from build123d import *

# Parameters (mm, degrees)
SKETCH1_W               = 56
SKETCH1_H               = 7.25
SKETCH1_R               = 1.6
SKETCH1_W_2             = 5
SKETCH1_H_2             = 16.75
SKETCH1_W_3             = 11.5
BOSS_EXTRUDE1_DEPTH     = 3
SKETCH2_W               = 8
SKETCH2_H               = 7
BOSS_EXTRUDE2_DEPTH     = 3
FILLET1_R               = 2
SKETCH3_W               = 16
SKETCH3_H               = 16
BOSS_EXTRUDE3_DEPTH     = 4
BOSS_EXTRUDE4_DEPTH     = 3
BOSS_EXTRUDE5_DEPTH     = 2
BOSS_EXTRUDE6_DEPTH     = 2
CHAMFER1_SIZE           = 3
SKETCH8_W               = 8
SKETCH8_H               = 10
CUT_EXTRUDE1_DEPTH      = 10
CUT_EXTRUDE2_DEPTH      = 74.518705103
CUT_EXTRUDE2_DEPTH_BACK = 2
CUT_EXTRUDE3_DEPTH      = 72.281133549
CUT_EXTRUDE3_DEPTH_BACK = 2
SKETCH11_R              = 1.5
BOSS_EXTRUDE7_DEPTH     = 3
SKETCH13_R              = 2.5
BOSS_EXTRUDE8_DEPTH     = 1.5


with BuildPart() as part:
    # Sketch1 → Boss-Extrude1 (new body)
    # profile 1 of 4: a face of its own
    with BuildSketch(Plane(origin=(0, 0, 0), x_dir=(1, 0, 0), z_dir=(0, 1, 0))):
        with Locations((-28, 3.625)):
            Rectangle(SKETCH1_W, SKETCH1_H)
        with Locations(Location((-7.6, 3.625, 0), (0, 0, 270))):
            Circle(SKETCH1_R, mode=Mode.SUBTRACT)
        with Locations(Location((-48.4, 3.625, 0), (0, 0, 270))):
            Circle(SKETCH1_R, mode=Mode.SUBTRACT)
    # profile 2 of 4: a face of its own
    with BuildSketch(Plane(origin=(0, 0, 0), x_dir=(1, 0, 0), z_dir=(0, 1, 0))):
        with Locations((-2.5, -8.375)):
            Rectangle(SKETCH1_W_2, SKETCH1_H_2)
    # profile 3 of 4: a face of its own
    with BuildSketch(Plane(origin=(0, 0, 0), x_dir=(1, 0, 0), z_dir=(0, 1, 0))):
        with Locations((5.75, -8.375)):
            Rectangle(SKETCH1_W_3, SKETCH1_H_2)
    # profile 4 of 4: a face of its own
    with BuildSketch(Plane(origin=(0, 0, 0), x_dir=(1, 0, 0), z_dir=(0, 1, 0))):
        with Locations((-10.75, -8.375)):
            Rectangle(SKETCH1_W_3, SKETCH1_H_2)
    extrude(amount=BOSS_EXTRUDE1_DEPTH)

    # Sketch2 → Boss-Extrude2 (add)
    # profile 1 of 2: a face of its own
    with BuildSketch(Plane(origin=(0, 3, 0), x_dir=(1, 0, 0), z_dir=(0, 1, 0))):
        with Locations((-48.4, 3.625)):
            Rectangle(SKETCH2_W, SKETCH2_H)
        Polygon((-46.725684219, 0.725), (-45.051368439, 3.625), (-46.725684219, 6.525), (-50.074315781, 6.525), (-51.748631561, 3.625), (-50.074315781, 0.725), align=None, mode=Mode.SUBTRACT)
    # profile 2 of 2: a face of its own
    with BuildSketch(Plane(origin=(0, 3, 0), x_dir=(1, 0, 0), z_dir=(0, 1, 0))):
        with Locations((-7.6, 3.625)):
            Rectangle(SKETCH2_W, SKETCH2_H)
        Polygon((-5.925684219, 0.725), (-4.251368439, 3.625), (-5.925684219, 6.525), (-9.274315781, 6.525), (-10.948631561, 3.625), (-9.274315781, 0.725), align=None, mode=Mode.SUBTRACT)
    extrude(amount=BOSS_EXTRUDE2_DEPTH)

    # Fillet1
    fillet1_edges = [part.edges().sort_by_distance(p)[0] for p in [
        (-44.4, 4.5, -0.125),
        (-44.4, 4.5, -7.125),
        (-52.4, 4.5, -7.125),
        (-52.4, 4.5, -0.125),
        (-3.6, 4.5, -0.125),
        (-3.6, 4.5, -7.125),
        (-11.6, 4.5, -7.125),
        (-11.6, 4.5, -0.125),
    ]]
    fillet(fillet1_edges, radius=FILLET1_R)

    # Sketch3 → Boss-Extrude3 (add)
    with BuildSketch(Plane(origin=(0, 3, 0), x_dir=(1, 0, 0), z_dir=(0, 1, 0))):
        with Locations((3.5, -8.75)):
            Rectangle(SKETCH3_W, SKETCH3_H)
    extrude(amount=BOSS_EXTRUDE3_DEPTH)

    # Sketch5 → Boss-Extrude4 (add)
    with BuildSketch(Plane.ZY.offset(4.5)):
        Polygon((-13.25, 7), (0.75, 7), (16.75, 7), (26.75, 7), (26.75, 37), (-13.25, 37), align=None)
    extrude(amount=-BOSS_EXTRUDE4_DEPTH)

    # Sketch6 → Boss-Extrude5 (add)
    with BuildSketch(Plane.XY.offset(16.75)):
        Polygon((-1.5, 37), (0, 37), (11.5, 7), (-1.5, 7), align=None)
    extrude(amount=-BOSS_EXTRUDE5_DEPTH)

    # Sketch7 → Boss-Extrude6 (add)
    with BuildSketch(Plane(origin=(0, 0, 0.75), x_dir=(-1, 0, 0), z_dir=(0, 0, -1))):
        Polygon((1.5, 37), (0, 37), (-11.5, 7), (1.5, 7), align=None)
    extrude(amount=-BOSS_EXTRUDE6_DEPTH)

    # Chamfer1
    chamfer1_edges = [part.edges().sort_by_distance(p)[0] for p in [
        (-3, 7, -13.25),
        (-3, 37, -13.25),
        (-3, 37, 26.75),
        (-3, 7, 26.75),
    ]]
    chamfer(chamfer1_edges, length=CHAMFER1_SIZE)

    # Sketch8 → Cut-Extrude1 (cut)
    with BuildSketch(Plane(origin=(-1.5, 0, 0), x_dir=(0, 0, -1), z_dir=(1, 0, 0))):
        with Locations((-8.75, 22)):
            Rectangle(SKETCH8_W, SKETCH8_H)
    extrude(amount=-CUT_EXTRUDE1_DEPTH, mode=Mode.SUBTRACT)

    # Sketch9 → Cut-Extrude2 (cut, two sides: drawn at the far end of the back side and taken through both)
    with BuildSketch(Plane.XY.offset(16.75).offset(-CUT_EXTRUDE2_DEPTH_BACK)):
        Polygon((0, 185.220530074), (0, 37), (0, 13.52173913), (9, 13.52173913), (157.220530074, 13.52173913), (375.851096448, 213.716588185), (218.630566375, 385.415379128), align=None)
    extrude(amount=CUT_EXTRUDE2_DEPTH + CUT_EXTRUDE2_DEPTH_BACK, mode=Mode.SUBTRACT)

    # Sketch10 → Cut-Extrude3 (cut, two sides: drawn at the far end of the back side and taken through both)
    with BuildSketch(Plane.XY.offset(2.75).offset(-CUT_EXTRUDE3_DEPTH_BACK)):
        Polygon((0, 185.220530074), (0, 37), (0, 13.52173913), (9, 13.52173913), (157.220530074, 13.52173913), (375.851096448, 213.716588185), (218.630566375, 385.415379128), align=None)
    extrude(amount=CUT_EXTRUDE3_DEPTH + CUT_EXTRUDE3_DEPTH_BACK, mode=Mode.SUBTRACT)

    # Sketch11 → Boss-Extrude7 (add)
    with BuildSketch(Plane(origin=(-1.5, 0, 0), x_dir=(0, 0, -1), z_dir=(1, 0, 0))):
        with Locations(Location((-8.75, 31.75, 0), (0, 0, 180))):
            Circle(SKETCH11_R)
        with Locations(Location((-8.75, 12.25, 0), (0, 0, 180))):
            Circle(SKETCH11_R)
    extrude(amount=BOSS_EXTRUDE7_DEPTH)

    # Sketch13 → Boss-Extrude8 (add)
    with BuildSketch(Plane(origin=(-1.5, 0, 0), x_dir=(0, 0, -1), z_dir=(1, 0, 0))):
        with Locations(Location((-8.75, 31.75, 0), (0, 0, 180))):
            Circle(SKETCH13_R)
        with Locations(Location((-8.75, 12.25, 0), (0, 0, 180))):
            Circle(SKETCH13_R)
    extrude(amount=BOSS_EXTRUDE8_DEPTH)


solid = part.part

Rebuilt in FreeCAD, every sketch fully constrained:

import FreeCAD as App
import Part
import Sketcher

V = App.Vector
Q = App.Units.Quantity


def edges_at(feature, points):
    """Names of the edges that pass closest to the given points."""
    edges = feature.Shape.Edges
    near = lambda p: min(range(len(edges)), key=lambda i: edges[i].distToShape(Part.Vertex(*p))[0])
    return sorted({f"Edge{near(p) + 1}" for p in points})


def add_polygon(sketch, points):
    """Adds a closed chain of lines whose ends are joined by coincident constraints."""
    first, n = sketch.GeometryCount, len(points)
    for a, b in zip(points, points[1:] + points[:1]):
        sketch.addGeometry(Part.LineSegment(App.Vector(*a, 0), App.Vector(*b, 0)), False)
    for i in range(n):
        sketch.addConstraint(Sketcher.Constraint("Coincident", first + i, 2, first + (i + 1) % n, 1))

doc = App.newDocument("Part")
body = doc.addObject("PartDesign::Body", "Body")

# Sketch on XZ plane
sketch1 = body.newObject("Sketcher::SketchObject", "Sketch")
sketch1.AttachmentSupport = (doc.getObject("XZ_Plane"), [""])
sketch1.MapMode = "FlatFace"
add_polygon(sketch1, [(-56, -7.2), (-56, 0), (-16.5, 0), (-16.5, 16.8), (11.5, 16.8), (11.5, 0), (0, 0), (0, -7.2)])  # lines 0-7
sketch1.addGeometry(Part.Circle(V(-48.4, -3.6, 0), V(0, 0, 1), 1.6), False)  # 8
sketch1.addGeometry(Part.Circle(V(-7.6, -3.6, 0), V(0, 0, 1), 1.6), False)  # 9
sketch1.addConstraint([
    Sketcher.Constraint("Vertical", 0),
    Sketcher.Constraint("Horizontal", 1),
    Sketcher.Constraint("Vertical", 2),
    Sketcher.Constraint("Horizontal", 3),
    Sketcher.Constraint("Vertical", 4),
    Sketcher.Constraint("Horizontal", 5),
    Sketcher.Constraint("Vertical", 6),
    Sketcher.Constraint("Horizontal", 7),
    Sketcher.Constraint("Coincident", 5, 2, -1, 1),
    Sketcher.Constraint("Equal", 8, 9),
    Sketcher.Constraint("PointOnObject", 0, 2, -1),
    Sketcher.Constraint("Horizontal", 8, 3, 9, 3),
    Sketcher.Constraint("Diameter", 8, 3.2),
    Sketcher.Constraint("DistanceX", 3, 1, 3, 2, 28.0),
    Sketcher.Constraint("DistanceX", 7, 2, 7, 1, 56.0),
    Sketcher.Constraint("DistanceX", 1, 1, 1, 2, 39.5),
    Sketcher.Constraint("DistanceY", 6, 2, 3, 2, 24.0),
    Sketcher.Constraint("DistanceY", 0, 1, 0, 2, 7.25),
    Sketcher.Constraint("DistanceX", 8, 3, -1, 1, 48.4),
    Sketcher.Constraint("DistanceX", 9, 3, -1, 1, 7.6),
    Sketcher.Constraint("DistanceY", 8, 3, -1, 1, 3.625),
])
pad1 = body.newObject("PartDesign::Pad", "Pad")
pad1.Profile = sketch1
pad1.Length = 3
pad1.Reversed = True

# Sketch on XZ plane
sketch2 = body.newObject("Sketcher::SketchObject", "Sketch001")
sketch2.AttachmentSupport = (doc.getObject("XZ_Plane"), [""])
sketch2.MapMode = "FlatFace"
sketch2.AttachmentOffset = App.Placement(V(0, 0, -3), App.Rotation())
add_polygon(sketch2, [(-52.4, -7.1), (-52.4, -0.1), (-44.4, -0.1), (-44.4, -7.1)])  # lines 0-3
add_polygon(sketch2, [(-45.1, -3.6), (-46.7, -0.7), (-50.1, -0.7), (-51.7, -3.6), (-50.1, -6.5), (-46.7, -6.5)])  # lines 4-9
add_polygon(sketch2, [(-11.6, -7.1), (-11.6, -0.1), (-3.6, -0.1), (-3.6, -7.1)])  # lines 10-13
add_polygon(sketch2, [(-4.3, -3.6), (-5.9, -0.7), (-9.3, -0.7), (-10.9, -3.6), (-9.3, -6.5), (-5.9, -6.5)])  # lines 14-19
sketch2.addConstraint([
    Sketcher.Constraint("Vertical", 0),
    Sketcher.Constraint("Horizontal", 1),
    Sketcher.Constraint("Vertical", 2),
    Sketcher.Constraint("Horizontal", 3),
    Sketcher.Constraint("Horizontal", 5),
    Sketcher.Constraint("Horizontal", 8),
    Sketcher.Constraint("Vertical", 10),
    Sketcher.Constraint("Horizontal", 11),
    Sketcher.Constraint("Vertical", 12),
    Sketcher.Constraint("Horizontal", 13),
    Sketcher.Constraint("Horizontal", 15),
    Sketcher.Constraint("Horizontal", 18),
    Sketcher.Constraint("Parallel", 4, 7),
    Sketcher.Constraint("Parallel", 6, 9),
    Sketcher.Constraint("Parallel", 7, 14),
    Sketcher.Constraint("Parallel", 9, 16),
    Sketcher.Constraint("Parallel", 14, 17),
    Sketcher.Constraint("Parallel", 16, 19),
    Sketcher.Constraint("Horizontal", 6, 2, 9, 2),
    Sketcher.Constraint("Horizontal", 1, 2, 10, 2),
    Sketcher.Constraint("Horizontal", 3, 2, 12, 2),
    Sketcher.Constraint("Horizontal", 5, 2, 14, 2),
    Sketcher.Constraint("Horizontal", 9, 2, 16, 2),
    Sketcher.Constraint("Horizontal", 8, 2, 17, 2),
    Sketcher.Constraint("Horizontal", 16, 2, 19, 2),
    Sketcher.Constraint("Vertical", 5, 2, 7, 2),
    Sketcher.Constraint("Vertical", 4, 2, 8, 2),
    Sketcher.Constraint("Equal", 3, 11),
    Sketcher.Constraint("Equal", 8, 15),
    Sketcher.Constraint("DistanceX", 1, 1, 1, 2, 8.0),
    Sketcher.Constraint("DistanceY", 0, 1, 0, 2, 7.0),
    Sketcher.Constraint("Angle", 4, Q("120 deg")),
    Sketcher.Constraint("DistanceX", 0, 2, -1, 1, 52.4),
    Sketcher.Constraint("DistanceX", 10, 2, -1, 1, 11.6),
    Sketcher.Constraint("DistanceY", 4, 2, 1, 2, 0.6),
    Sketcher.Constraint("DistanceY", 6, 2, 5, 2, 2.9),
    Sketcher.Constraint("DistanceY", 0, 2, -1, 1, 0.125),
    Sketcher.Constraint("DistanceX", 5, 2, 5, 1, 3.348632),
    Sketcher.Constraint("DistanceX", 6, 2, -1, 1, 51.748632),
    Sketcher.Constraint("DistanceX", 16, 2, -1, 1, 10.948632),
])
pad2 = body.newObject("PartDesign::Pad", "Pad001")
pad2.Profile = sketch2
pad2.Length = 3
pad2.Reversed = True
doc.recompute()

fillet = body.newObject("PartDesign::Fillet", "Fillet")
fillet.Base = (pad2, edges_at(pad2, [
    (-44.4, 4.5, -0.125),
    (-44.4, 4.5, -7.125),
    (-52.4, 4.5, -7.125),
    (-52.4, 4.5, -0.125),
    (-3.6, 4.5, -0.125),
    (-3.6, 4.5, -7.125),
    (-11.6, 4.5, -7.125),
    (-11.6, 4.5, -0.125),
]))
fillet.Radius = 2

# Sketch on XZ plane
sketch3 = body.newObject("Sketcher::SketchObject", "Sketch002")
sketch3.AttachmentSupport = (doc.getObject("XZ_Plane"), [""])
sketch3.MapMode = "FlatFace"
sketch3.AttachmentOffset = App.Placement(V(0, 0, -3), App.Rotation())
add_polygon(sketch3, [(-4, 1), (-4, 17), (12, 17), (12, 1)])  # lines 0-3
sketch3.addConstraint([
    Sketcher.Constraint("Vertical", 0),
    Sketcher.Constraint("Horizontal", 1),
    Sketcher.Constraint("Vertical", 2),
    Sketcher.Constraint("Horizontal", 3),
    Sketcher.Constraint("Equal", 3, 0),
    Sketcher.Constraint("DistanceX", 1, 1, 1, 2, 16.0),
    Sketcher.Constraint("DistanceX", 0, 2, -1, 1, 4.5),
    Sketcher.Constraint("DistanceY", -1, 1, 0, 2, 16.75),
])
pad3 = body.newObject("PartDesign::Pad", "Pad002")
pad3.Profile = sketch3
pad3.Length = 4
pad3.Reversed = True

# Sketch on YZ plane
sketch4 = body.newObject("Sketcher::SketchObject", "Sketch003")
sketch4.AttachmentSupport = (doc.getObject("YZ_Plane"), [""])
sketch4.MapMode = "FlatFace"
sketch4.AttachmentOffset = App.Placement(V(0, 0, -4.5), App.Rotation())
add_polygon(sketch4, [(7, -13), (7, 27), (37, 27), (37, -13)])  # lines 0-3
sketch4.addConstraint([
    Sketcher.Constraint("Vertical", 0),
    Sketcher.Constraint("Horizontal", 1),
    Sketcher.Constraint("Vertical", 2),
    Sketcher.Constraint("Horizontal", 3),
    Sketcher.Constraint("DistanceX", 1, 1, 1, 2, 30.0),
    Sketcher.Constraint("DistanceY", 0, 1, 0, 2, 40.0),
    Sketcher.Constraint("DistanceX", -1, 1, 0, 2, 7.0),
    Sketcher.Constraint("DistanceY", -1, 1, 0, 2, 26.75),
])
pad4 = body.newObject("PartDesign::Pad", "Pad003")
pad4.Profile = sketch4
pad4.Length = 3

# Sketch on XY plane
sketch5 = body.newObject("Sketcher::SketchObject", "Sketch004")
sketch5.AttachmentSupport = (doc.getObject("XY_Plane"), [""])
sketch5.MapMode = "FlatFace"
sketch5.AttachmentOffset = App.Placement(V(0, 0, 16.75), App.Rotation())
add_polygon(sketch5, [(0, 37), (-1.5, 37), (-1.5, 7), (11.5, 7)])  # lines 0-3
sketch5.addConstraint([
    Sketcher.Constraint("Horizontal", 0),
    Sketcher.Constraint("Vertical", 1),
    Sketcher.Constraint("Horizontal", 2),
    Sketcher.Constraint("PointOnObject", 3, 2, -2),
    Sketcher.Constraint("DistanceX", 2, 1, 2, 2, 13.0),
    Sketcher.Constraint("DistanceY", 1, 2, 1, 1, 30.0),
    Sketcher.Constraint("DistanceX", 0, 2, 0, 1, 1.5),
    Sketcher.Constraint("DistanceY", -1, 1, 0, 2, 37.0),
])
pad5 = body.newObject("PartDesign::Pad", "Pad004")
pad5.Profile = sketch5
pad5.Length = 2
pad5.Reversed = True

# Sketch on XY plane
sketch6 = body.newObject("Sketcher::SketchObject", "Sketch005")
sketch6.AttachmentSupport = (doc.getObject("XY_Plane"), [""])
sketch6.MapMode = "FlatFace"
sketch6.AttachmentOffset = App.Placement(V(0, 0, 0.75), App.Rotation())
add_polygon(sketch6, [(-1.5, 37), (0, 37), (11.5, 7), (-1.5, 7)])  # lines 0-3
sketch6.addConstraint([
    Sketcher.Constraint("Horizontal", 0),
    Sketcher.Constraint("Horizontal", 2),
    Sketcher.Constraint("Vertical", 3),
    Sketcher.Constraint("PointOnObject", 0, 2, -2),
    Sketcher.Constraint("DistanceX", 2, 2, 2, 1, 13.0),
    Sketcher.Constraint("DistanceY", 3, 1, 3, 2, 30.0),
    Sketcher.Constraint("DistanceX", 0, 1, 0, 2, 1.5),
    Sketcher.Constraint("DistanceY", -1, 1, 0, 2, 37.0),
])
pad6 = body.newObject("PartDesign::Pad", "Pad005")
pad6.Profile = sketch6
pad6.Length = 2
doc.recompute()

chamfer = body.newObject("PartDesign::Chamfer", "Chamfer")
chamfer.Base = (pad6, edges_at(pad6, [
    (-3, 7, -13.25),
    (-3, 37, -13.25),
    (-3, 37, 26.75),
    (-3, 7, 26.75),
]))
chamfer.Size = 3

# Sketch on YZ plane
sketch7 = body.newObject("Sketcher::SketchObject", "Sketch006")
sketch7.AttachmentSupport = (doc.getObject("YZ_Plane"), [""])
sketch7.MapMode = "FlatFace"
sketch7.AttachmentOffset = App.Placement(V(0, 0, -1.5), App.Rotation())
add_polygon(sketch7, [(27, 13), (17, 13), (17, 5), (27, 5)])  # lines 0-3
sketch7.addConstraint([
    Sketcher.Constraint("Horizontal", 0),
    Sketcher.Constraint("Vertical", 1),
    Sketcher.Constraint("Horizontal", 2),
    Sketcher.Constraint("Vertical", 3),
    Sketcher.Constraint("DistanceX", 0, 2, 0, 1, 10.0),
    Sketcher.Constraint("DistanceY", 1, 2, 1, 1, 8.0),
    Sketcher.Constraint("DistanceX", -1, 1, 0, 2, 17.0),
    Sketcher.Constraint("DistanceY", -1, 1, 0, 2, 12.75),
])
pocket1 = body.newObject("PartDesign::Pocket", "Pocket")
pocket1.Profile = sketch7
pocket1.Length = 10

# Sketch on XY plane
sketch8 = body.newObject("Sketcher::SketchObject", "Sketch007")
sketch8.AttachmentSupport = (doc.getObject("XY_Plane"), [""])
sketch8.MapMode = "FlatFace"
sketch8.AttachmentOffset = App.Placement(V(0, 0, 16.75), App.Rotation())
add_polygon(sketch8, [(0, 185), (0, 14), (157, 14), (376, 214), (219, 385)])  # lines 0-4
sketch8.addConstraint([
    Sketcher.Constraint("Vertical", 0),
    Sketcher.Constraint("Horizontal", 1),
    Sketcher.Constraint("PointOnObject", 0, 2, -2),
    Sketcher.Constraint("Perpendicular", 2, 3),
    Sketcher.Constraint("Perpendicular", 3, 4),
    Sketcher.Constraint("Equal", 2, 4),
    Sketcher.Constraint("DistanceX", 1, 1, 1, 2, 157.22053),
    Sketcher.Constraint("DistanceY", 0, 2, 0, 1, 171.698791),
    Sketcher.Constraint("Distance", 2, 296.44106),
    Sketcher.Constraint("DistanceY", -1, 1, 0, 2, 13.521739),
])
pocket2 = body.newObject("PartDesign::Pocket", "Pocket001")
pocket2.Profile = sketch8
pocket2.Type = "TwoLengths"
pocket2.Length = 74.518705
pocket2.Length2 = 2
pocket2.Reversed = True

# Sketch on XY plane
sketch9 = body.newObject("Sketcher::SketchObject", "Sketch008")
sketch9.AttachmentSupport = (doc.getObject("XY_Plane"), [""])
sketch9.MapMode = "FlatFace"
sketch9.AttachmentOffset = App.Placement(V(0, 0, 2.75), App.Rotation())
add_polygon(sketch9, [(0, 185), (0, 14), (157, 14), (376, 214), (219, 385)])  # lines 0-4
sketch9.addConstraint([
    Sketcher.Constraint("Vertical", 0),
    Sketcher.Constraint("Horizontal", 1),
    Sketcher.Constraint("PointOnObject", 0, 2, -2),
    Sketcher.Constraint("Perpendicular", 2, 3),
    Sketcher.Constraint("Perpendicular", 3, 4),
    Sketcher.Constraint("Equal", 2, 4),
    Sketcher.Constraint("DistanceX", 1, 1, 1, 2, 157.22053),
    Sketcher.Constraint("DistanceY", 0, 2, 0, 1, 171.698791),
    Sketcher.Constraint("Distance", 2, 296.44106),
    Sketcher.Constraint("DistanceY", -1, 1, 0, 2, 13.521739),
])
pocket3 = body.newObject("PartDesign::Pocket", "Pocket002")
pocket3.Profile = sketch9
pocket3.Type = "ThroughAll"
pocket3.Midplane = True

# Sketch on YZ plane
sketch10 = body.newObject("Sketcher::SketchObject", "Sketch009")
sketch10.AttachmentSupport = (doc.getObject("YZ_Plane"), [""])
sketch10.MapMode = "FlatFace"
sketch10.AttachmentOffset = App.Placement(V(0, 0, -1.5), App.Rotation())
sketch10.addGeometry([
    Part.Circle(V(31.8, 8.8, 0), V(0, 0, 1), 1.5),
    Part.Circle(V(12.2, 8.8, 0), V(0, 0, 1), 1.5),
], False)
sketch10.addConstraint([
    Sketcher.Constraint("Equal", 0, 1),
    Sketcher.Constraint("Horizontal", 0, 3, 1, 3),
    Sketcher.Constraint("Diameter", 0, 3.0),
    Sketcher.Constraint("DistanceX", 1, 3, 0, 3, 19.5),
    Sketcher.Constraint("DistanceX", -1, 1, 0, 3, 31.75),
    Sketcher.Constraint("DistanceY", -1, 1, 0, 3, 8.75),
])
pad7 = body.newObject("PartDesign::Pad", "Pad006")
pad7.Profile = sketch10
pad7.Length = 3

# Sketch on YZ plane
sketch11 = body.newObject("Sketcher::SketchObject", "Sketch010")
sketch11.AttachmentSupport = (doc.getObject("YZ_Plane"), [""])
sketch11.MapMode = "FlatFace"
sketch11.AttachmentOffset = App.Placement(V(0, 0, -1.5), App.Rotation())
sketch11.addGeometry([
    Part.Circle(V(31.8, 8.8, 0), V(0, 0, 1), 2.5),
    Part.Circle(V(12.2, 8.8, 0), V(0, 0, 1), 2.5),
], False)
sketch11.addConstraint([
    Sketcher.Constraint("Equal", 0, 1),
    Sketcher.Constraint("Horizontal", 0, 3, 1, 3),
    Sketcher.Constraint("Diameter", 0, 5.0),
    Sketcher.Constraint("DistanceX", 1, 3, 0, 3, 19.5),
    Sketcher.Constraint("DistanceX", -1, 1, 0, 3, 31.75),
    Sketcher.Constraint("DistanceY", -1, 1, 0, 3, 8.75),
])
pad8 = body.newObject("PartDesign::Pad", "Pad007")
pad8.Profile = sketch11
pad8.Length = 1.5

doc.recompute()
